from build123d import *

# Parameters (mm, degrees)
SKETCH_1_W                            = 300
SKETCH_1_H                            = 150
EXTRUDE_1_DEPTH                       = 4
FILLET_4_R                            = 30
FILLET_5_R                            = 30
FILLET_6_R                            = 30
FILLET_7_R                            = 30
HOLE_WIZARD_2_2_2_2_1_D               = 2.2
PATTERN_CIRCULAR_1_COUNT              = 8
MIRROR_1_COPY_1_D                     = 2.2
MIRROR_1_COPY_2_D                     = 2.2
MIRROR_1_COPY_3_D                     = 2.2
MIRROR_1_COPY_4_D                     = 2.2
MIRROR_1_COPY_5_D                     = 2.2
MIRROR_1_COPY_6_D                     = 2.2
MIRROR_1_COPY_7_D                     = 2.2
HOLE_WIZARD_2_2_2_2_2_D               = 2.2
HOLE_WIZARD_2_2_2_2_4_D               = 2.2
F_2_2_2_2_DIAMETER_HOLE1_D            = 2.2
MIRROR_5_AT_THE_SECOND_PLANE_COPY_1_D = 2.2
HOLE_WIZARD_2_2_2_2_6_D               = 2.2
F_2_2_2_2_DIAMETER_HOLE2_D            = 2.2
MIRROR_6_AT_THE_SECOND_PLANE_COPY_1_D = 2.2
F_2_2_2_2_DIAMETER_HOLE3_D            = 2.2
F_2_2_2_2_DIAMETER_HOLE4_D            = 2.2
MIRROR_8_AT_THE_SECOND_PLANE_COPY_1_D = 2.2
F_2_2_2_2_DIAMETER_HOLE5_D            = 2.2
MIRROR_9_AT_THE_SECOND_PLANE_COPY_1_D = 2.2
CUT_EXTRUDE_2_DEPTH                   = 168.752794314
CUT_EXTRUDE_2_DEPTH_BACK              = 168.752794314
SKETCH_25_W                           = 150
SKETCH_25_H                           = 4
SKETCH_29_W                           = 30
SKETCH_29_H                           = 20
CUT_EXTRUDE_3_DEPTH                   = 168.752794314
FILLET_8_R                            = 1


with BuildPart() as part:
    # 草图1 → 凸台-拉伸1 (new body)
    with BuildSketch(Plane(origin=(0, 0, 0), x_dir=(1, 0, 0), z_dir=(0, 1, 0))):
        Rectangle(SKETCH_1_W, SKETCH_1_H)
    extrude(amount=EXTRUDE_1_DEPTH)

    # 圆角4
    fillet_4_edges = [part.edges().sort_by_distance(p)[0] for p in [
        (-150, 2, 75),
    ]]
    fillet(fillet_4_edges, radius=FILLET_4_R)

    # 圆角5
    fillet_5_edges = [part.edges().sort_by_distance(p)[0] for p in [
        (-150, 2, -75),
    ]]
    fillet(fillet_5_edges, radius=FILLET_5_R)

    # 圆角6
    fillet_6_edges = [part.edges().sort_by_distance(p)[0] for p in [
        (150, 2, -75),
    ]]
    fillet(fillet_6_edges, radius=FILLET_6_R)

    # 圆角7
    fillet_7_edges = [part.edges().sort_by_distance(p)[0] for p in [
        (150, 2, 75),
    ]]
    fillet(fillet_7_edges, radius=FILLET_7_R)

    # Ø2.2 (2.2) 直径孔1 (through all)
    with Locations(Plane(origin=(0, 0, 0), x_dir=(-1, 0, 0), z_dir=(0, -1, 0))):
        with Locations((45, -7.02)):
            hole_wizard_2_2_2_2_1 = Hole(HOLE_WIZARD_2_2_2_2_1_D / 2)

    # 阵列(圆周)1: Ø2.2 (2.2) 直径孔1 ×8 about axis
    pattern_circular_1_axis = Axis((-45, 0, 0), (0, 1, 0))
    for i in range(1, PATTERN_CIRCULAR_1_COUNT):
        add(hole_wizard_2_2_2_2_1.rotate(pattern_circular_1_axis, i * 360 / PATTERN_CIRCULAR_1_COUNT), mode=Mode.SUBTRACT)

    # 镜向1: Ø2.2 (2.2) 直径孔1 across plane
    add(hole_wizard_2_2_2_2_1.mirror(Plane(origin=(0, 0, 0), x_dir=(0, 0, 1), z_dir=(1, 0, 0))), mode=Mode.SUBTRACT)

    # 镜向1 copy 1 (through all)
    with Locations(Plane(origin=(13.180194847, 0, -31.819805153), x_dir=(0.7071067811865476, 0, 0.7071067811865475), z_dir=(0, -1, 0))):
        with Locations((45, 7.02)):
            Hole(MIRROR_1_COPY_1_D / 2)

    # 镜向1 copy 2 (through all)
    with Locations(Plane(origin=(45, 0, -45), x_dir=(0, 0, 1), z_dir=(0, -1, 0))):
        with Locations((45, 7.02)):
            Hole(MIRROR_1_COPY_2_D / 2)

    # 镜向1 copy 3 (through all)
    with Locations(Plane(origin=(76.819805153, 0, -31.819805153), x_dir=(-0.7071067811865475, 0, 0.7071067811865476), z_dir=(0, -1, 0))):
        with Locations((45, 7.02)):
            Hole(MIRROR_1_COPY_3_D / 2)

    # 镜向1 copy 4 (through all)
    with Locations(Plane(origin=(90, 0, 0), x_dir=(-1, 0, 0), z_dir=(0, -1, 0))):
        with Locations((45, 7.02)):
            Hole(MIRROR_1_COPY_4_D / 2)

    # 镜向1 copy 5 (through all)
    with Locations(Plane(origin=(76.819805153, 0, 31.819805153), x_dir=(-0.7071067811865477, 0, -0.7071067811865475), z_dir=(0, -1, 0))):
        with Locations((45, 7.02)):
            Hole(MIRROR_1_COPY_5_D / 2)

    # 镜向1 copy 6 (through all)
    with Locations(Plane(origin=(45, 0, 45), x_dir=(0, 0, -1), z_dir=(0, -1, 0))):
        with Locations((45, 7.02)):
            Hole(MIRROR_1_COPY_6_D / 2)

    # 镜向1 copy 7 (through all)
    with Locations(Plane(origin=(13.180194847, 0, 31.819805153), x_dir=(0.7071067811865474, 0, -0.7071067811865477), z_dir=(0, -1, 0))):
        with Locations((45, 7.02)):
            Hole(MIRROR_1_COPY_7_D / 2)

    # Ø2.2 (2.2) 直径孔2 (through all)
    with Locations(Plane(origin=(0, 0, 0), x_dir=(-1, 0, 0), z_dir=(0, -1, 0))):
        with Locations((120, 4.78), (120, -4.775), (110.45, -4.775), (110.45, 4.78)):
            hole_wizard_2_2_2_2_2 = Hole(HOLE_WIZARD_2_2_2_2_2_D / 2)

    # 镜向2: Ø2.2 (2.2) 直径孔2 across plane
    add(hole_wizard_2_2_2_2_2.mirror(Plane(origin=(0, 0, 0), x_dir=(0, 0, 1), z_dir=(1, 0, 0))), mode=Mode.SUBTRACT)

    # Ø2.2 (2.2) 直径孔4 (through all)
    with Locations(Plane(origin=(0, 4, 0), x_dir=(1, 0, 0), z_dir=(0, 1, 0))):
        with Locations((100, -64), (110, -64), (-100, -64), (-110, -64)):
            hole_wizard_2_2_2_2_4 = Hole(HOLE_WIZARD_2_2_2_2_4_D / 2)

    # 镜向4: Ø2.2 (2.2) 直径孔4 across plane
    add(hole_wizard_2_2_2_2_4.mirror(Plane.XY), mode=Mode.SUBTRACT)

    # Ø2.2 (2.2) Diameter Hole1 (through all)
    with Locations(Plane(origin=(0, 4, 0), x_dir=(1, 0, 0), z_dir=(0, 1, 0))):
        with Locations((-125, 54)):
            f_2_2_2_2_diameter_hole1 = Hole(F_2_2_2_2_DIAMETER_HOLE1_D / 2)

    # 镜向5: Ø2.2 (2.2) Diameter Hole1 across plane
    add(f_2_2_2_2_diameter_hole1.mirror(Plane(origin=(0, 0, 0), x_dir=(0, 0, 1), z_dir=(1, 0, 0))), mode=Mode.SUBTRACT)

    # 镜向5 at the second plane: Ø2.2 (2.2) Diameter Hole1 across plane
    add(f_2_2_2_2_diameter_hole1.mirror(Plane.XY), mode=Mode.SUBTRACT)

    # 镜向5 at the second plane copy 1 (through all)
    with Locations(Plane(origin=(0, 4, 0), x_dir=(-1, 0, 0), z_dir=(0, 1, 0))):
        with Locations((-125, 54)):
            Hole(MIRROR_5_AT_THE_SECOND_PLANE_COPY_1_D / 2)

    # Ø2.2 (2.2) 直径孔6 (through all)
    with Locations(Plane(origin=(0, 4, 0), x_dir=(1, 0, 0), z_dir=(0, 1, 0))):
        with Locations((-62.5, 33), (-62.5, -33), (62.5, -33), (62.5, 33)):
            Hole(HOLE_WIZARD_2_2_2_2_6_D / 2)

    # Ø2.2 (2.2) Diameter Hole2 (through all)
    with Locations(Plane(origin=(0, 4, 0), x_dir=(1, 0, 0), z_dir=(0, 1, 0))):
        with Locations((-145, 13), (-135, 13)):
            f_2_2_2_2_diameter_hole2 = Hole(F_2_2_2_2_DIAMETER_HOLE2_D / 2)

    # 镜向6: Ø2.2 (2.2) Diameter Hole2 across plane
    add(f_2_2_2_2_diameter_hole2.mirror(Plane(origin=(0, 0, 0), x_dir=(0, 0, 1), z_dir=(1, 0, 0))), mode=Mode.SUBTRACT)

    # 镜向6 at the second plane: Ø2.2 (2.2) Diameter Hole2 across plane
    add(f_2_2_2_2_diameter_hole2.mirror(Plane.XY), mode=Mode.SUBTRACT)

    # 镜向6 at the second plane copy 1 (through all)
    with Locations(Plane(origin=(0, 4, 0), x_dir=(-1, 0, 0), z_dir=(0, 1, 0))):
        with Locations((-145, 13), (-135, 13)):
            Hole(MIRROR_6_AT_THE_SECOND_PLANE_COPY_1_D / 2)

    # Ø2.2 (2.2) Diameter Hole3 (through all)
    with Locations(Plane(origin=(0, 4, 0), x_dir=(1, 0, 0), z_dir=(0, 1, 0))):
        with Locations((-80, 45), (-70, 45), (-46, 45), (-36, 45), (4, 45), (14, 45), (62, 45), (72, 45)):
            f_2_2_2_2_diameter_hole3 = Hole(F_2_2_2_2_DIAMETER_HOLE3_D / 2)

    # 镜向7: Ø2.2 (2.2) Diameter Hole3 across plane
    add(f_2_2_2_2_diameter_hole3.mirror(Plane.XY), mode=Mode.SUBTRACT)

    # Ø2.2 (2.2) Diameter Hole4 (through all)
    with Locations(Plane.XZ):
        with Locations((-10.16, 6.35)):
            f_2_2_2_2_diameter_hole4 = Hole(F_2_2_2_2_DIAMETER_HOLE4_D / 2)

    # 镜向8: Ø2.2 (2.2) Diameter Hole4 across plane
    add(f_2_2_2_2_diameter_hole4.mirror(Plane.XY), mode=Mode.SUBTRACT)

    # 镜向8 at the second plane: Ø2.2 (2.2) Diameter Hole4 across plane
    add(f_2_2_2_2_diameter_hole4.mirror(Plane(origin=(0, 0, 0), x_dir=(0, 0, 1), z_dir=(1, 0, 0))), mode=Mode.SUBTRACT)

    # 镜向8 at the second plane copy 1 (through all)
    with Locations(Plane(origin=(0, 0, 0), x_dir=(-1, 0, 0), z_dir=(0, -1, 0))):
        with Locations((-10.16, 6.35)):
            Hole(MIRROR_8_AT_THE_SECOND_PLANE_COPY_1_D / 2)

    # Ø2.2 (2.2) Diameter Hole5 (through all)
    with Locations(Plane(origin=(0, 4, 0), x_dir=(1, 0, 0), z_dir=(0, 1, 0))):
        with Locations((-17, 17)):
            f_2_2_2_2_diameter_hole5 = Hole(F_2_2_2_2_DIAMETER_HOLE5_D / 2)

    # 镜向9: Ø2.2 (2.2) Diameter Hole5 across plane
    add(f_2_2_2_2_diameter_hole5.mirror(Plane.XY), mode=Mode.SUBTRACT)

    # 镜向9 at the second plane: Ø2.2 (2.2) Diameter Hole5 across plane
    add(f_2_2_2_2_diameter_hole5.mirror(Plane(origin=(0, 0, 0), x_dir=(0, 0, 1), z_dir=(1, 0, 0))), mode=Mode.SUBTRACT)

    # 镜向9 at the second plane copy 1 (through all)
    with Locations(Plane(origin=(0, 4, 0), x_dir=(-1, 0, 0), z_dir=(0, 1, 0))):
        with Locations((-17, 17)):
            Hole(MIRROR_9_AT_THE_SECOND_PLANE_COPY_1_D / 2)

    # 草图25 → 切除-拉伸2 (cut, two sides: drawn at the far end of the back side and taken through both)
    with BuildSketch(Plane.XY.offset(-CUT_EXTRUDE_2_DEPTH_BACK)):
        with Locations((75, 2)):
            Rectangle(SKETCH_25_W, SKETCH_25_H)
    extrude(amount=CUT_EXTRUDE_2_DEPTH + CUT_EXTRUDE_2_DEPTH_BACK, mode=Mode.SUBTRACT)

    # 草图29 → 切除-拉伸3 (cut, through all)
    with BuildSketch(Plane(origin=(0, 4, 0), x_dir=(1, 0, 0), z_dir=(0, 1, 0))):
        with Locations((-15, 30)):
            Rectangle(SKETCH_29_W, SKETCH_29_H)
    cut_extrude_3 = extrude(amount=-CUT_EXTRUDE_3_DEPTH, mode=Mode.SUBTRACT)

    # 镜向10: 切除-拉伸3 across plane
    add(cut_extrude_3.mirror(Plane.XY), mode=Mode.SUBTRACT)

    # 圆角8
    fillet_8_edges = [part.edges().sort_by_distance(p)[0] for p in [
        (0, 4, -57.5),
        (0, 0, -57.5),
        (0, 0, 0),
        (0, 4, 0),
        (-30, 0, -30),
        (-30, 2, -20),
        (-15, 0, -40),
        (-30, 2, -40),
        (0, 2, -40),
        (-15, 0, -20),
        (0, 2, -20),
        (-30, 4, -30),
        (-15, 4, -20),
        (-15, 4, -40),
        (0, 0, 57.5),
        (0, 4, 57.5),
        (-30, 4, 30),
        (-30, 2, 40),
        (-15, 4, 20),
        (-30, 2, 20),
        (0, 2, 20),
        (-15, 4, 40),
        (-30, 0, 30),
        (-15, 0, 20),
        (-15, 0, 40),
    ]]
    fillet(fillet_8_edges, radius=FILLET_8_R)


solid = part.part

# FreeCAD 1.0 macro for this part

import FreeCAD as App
import Part
import Sketcher

V = App.Vector


def edges_at(feature, points):
    """Names of the edges that pass closest to the given points."""
    edges = feature.Shape.Edges
    near = lambda p: min(range(len(edges)), key=lambda i: edges[i].distToShape(Part.Vertex(*p))[0])
    return sorted({f"Edge{near(p) + 1}" for p in points})

doc = App.newDocument("Part")
body = doc.addObject("PartDesign::Body", "Body")

# Sketch on XZ plane
sketch1 = body.newObject("Sketcher::SketchObject", "Sketch")
sketch1.AttachmentSupport = (doc.getObject("XZ_Plane"), [""])
sketch1.MapMode = "FlatFace"
sketch1.addGeometry([
    Part.LineSegment(V(-150, -75, 0), V(-150, 75, 0)),
    Part.LineSegment(V(-150, 75, 0), V(150, 75, 0)),
    Part.LineSegment(V(150, 75, 0), V(150, -75, 0)),
    Part.LineSegment(V(150, -75, 0), V(-150, -75, 0)),
], False)
sketch1.addConstraint([
    Sketcher.Constraint("Coincident", 0, 2, 1, 1),
    Sketcher.Constraint("Coincident", 1, 2, 2, 1),
    Sketcher.Constraint("Coincident", 2, 2, 3, 1),
    Sketcher.Constraint("Coincident", 3, 2, 0, 1),
    Sketcher.Constraint("Vertical", 0),
    Sketcher.Constraint("Horizontal", 1),
    Sketcher.Constraint("Vertical", 2),
    Sketcher.Constraint("Horizontal", 3),
    Sketcher.Constraint("Symmetric", 0, 2, 2, 2, -1, 1),
    Sketcher.Constraint("DistanceX", 1, 1, 1, 2, 300.0),
    Sketcher.Constraint("DistanceY", 0, 1, 0, 2, 150.0),
])
pad1 = body.newObject("PartDesign::Pad", "Pad")
pad1.Profile = sketch1
pad1.Length = 4
pad1.Reversed = True
doc.recompute()

fillet = body.newObject("PartDesign::Fillet", "Fillet")
fillet.Base = (pad1, edges_at(pad1, [(-150, 2, 75)]))
fillet.Radius = 30
doc.recompute()

fillet2 = body.newObject("PartDesign::Fillet", "Fillet001")
fillet2.Base = (fillet, edges_at(fillet, [(-150, 2, -75)]))
fillet2.Radius = 30
doc.recompute()

fillet3 = body.newObject("PartDesign::Fillet", "Fillet002")
fillet3.Base = (fillet2, edges_at(fillet2, [(150, 2, -75)]))
fillet3.Radius = 30
doc.recompute()

fillet4 = body.newObject("PartDesign::Fillet", "Fillet003")
fillet4.Base = (fillet3, edges_at(fillet3, [(150, 2, 75)]))
fillet4.Radius = 30

# Sketch on XZ plane
sketch2 = body.newObject("Sketcher::SketchObject", "Sketch001")
sketch2.AttachmentSupport = (doc.getObject("XZ_Plane"), [""])
sketch2.MapMode = "FlatFace"
sketch2.addGeometry(Part.Circle(V(-45, 7, 0), V(0, 0, 1), 1.1), False)
sketch2.addConstraint([
    Sketcher.Constraint("Diameter", 0, 2.2),
    Sketcher.Constraint("DistanceX", 0, 3, -1, 1, 45.0),
    Sketcher.Constraint("DistanceY", -1, 1, 0, 3, 7.02),
])
doc.recompute()
hole = body.newObject("PartDesign::Hole", "Hole")
hole.Profile = sketch2
hole.ThreadType = "None"
hole.Diameter = 2.2
hole.DepthType = "ThroughAll"
doc.recompute()

datumline = body.newObject("PartDesign::Line", "DatumLine")
datumline.Placement = App.Placement(V(-45, 0, 0), App.Rotation(V(0, 0, 1), V(0, 1, 0)))
polarpattern = body.newObject("PartDesign::PolarPattern", "PolarPattern")
polarpattern.Originals = [hole]
polarpattern.Axis = (datumline, [""])
polarpattern.Angle = 360
polarpattern.Occurrences = 8
body.Tip = polarpattern
doc.recompute()

mirrored = body.newObject("PartDesign::Mirrored", "Mirrored")
mirrored.Originals = [hole]
mirrored.MirrorPlane = (doc.getObject("YZ_Plane"), [""])
body.Tip = mirrored

# Sketch on XZ plane
sketch3 = body.newObject("Sketcher::SketchObject", "Sketch002")
sketch3.AttachmentSupport = (doc.getObject("XZ_Plane"), [""])
sketch3.MapMode = "FlatFace"
sketch3.addGeometry(Part.Circle(V(40, 5, 0), V(0, 0, 1), 1.1), False)
sketch3.addConstraint([
    Sketcher.Constraint("Diameter", 0, 2.2),
    Sketcher.Constraint("DistanceX", -1, 1, 0, 3, 40.03611),
    Sketcher.Constraint("DistanceY", -1, 1, 0, 3, 4.96389),
])
doc.recompute()
hole2 = body.newObject("PartDesign::Hole", "Hole001")
hole2.Profile = sketch3
hole2.ThreadType = "None"
hole2.Diameter = 2.2
hole2.DepthType = "ThroughAll"

# Sketch on XZ plane
sketch4 = body.newObject("Sketcher::SketchObject", "Sketch003")
sketch4.AttachmentSupport = (doc.getObject("XZ_Plane"), [""])
sketch4.MapMode = "FlatFace"
sketch4.addGeometry(Part.Circle(V(38, 0, 0), V(0, 0, 1), 1.1), False)
sketch4.addConstraint([
    Sketcher.Constraint("PointOnObject", 0, 3, -1),
    Sketcher.Constraint("Diameter", 0, 2.2),
    Sketcher.Constraint("DistanceX", -1, 1, 0, 3, 37.98),
])
doc.recompute()
hole3 = body.newObject("PartDesign::Hole", "Hole002")
hole3.Profile = sketch4
hole3.ThreadType = "None"
hole3.Diameter = 2.2
hole3.DepthType = "ThroughAll"

# Sketch on XZ plane
sketch5 = body.newObject("Sketcher::SketchObject", "Sketch004")
sketch5.AttachmentSupport = (doc.getObject("XZ_Plane"), [""])
sketch5.MapMode = "FlatFace"
sketch5.addGeometry(Part.Circle(V(40, -5, 0), V(0, 0, 1), 1.1), False)
sketch5.addConstraint([
    Sketcher.Constraint("Diameter", 0, 2.2),
    Sketcher.Constraint("DistanceX", -1, 1, 0, 3, 40.03611),
    Sketcher.Constraint("DistanceY", 0, 3, -1, 1, 4.96389),
])
doc.recompute()
hole4 = body.newObject("PartDesign::Hole", "Hole003")
hole4.Profile = sketch5
hole4.ThreadType = "None"
hole4.Diameter = 2.2
hole4.DepthType = "ThroughAll"

# Sketch on XZ plane
sketch6 = body.newObject("Sketcher::SketchObject", "Sketch005")
sketch6.AttachmentSupport = (doc.getObject("XZ_Plane"), [""])
sketch6.MapMode = "FlatFace"
sketch6.addGeometry(Part.Circle(V(45, -7, 0), V(0, 0, 1), 1.1), False)
sketch6.addConstraint([
    Sketcher.Constraint("Diameter", 0, 2.2),
    Sketcher.Constraint("DistanceX", -1, 1, 0, 3, 45.0),
    Sketcher.Constraint("DistanceY", 0, 3, -1, 1, 7.02),
])
doc.recompute()
hole5 = body.newObject("PartDesign::Hole", "Hole004")
hole5.Profile = sketch6
hole5.ThreadType = "None"
hole5.Diameter = 2.2
hole5.DepthType = "ThroughAll"

# Sketch on XZ plane
sketch7 = body.newObject("Sketcher::SketchObject", "Sketch006")
sketch7.AttachmentSupport = (doc.getObject("XZ_Plane"), [""])
sketch7.MapMode = "FlatFace"
sketch7.addGeometry(Part.Circle(V(50, -5, 0), V(0, 0, 1), 1.1), False)
sketch7.addConstraint([
    Sketcher.Constraint("Diameter", 0, 2.2),
    Sketcher.Constraint("DistanceX", -1, 1, 0, 3, 49.96389),
    Sketcher.Constraint("DistanceY", 0, 3, -1, 1, 4.96389),
])
doc.recompute()
hole6 = body.newObject("PartDesign::Hole", "Hole005")
hole6.Profile = sketch7
hole6.ThreadType = "None"
hole6.Diameter = 2.2
hole6.DepthType = "ThroughAll"

# Sketch on XZ plane
sketch8 = body.newObject("Sketcher::SketchObject", "Sketch007")
sketch8.AttachmentSupport = (doc.getObject("XZ_Plane"), [""])
sketch8.MapMode = "FlatFace"
sketch8.addGeometry(Part.Circle(V(52, 0, 0), V(0, 0, 1), 1.1), False)
sketch8.addConstraint([
    Sketcher.Constraint("PointOnObject", 0, 3, -1),
    Sketcher.Constraint("Diameter", 0, 2.2),
    Sketcher.Constraint("DistanceX", -1, 1, 0, 3, 52.02),
])
doc.recompute()
hole7 = body.newObject("PartDesign::Hole", "Hole006")
hole7.Profile = sketch8
hole7.ThreadType = "None"
hole7.Diameter = 2.2
hole7.DepthType = "ThroughAll"

# Sketch on XZ plane
sketch9 = body.newObject("Sketcher::SketchObject", "Sketch008")
sketch9.AttachmentSupport = (doc.getObject("XZ_Plane"), [""])
sketch9.MapMode = "FlatFace"
sketch9.addGeometry(Part.Circle(V(50, 5, 0), V(0, 0, 1), 1.1), False)
sketch9.addConstraint([
    Sketcher.Constraint("Diameter", 0, 2.2),
    Sketcher.Constraint("DistanceX", -1, 1, 0, 3, 49.96389),
    Sketcher.Constraint("DistanceY", -1, 1, 0, 3, 4.96389),
])
doc.recompute()
hole8 = body.newObject("PartDesign::Hole", "Hole007")
hole8.Profile = sketch9
hole8.ThreadType = "None"
hole8.Diameter = 2.2
hole8.DepthType = "ThroughAll"

# Sketch on XZ plane
sketch10 = body.newObject("Sketcher::SketchObject", "Sketch009")
sketch10.AttachmentSupport = (doc.getObject("XZ_Plane"), [""])
sketch10.MapMode = "FlatFace"
sketch10.addGeometry([
    Part.Circle(V(-120, -4.8, 0), V(0, 0, 1), 1.1),
    Part.Circle(V(-120, 4.8, 0), V(0, 0, 1), 1.1),
    Part.Circle(V(-110.5, 4.8, 0), V(0, 0, 1), 1.1),
    Part.Circle(V(-110.5, -4.8, 0), V(0, 0, 1), 1.1),
], False)
sketch10.addConstraint([
    Sketcher.Constraint("Equal", 0, 1),
    Sketcher.Constraint("Equal", 1, 2),
    Sketcher.Constraint("Equal", 2, 3),
    Sketcher.Constraint("Horizontal", 1, 3, 2, 3),
    Sketcher.Constraint("Horizontal", 0, 3, 3, 3),
    Sketcher.Constraint("Vertical", 0, 3, 1, 3),
    Sketcher.Constraint("Vertical", 2, 3, 3, 3),
    Sketcher.Constraint("Diameter", 0, 2.2),
    Sketcher.Constraint("DistanceX", 0, 3, -1, 1, 120.0),
    Sketcher.Constraint("DistanceY", 0, 3, -1, 1, 4.78),
    Sketcher.Constraint("DistanceX", 2, 3, -1, 1, 110.45),
    Sketcher.Constraint("DistanceY", -1, 1, 1, 3, 4.775),
])
doc.recompute()
hole9 = body.newObject("PartDesign::Hole", "Hole008")
hole9.Profile = sketch10
hole9.ThreadType = "None"
hole9.Diameter = 2.2
hole9.DepthType = "ThroughAll"
doc.recompute()

mirrored2 = body.newObject("PartDesign::Mirrored", "Mirrored001")
mirrored2.Originals = [hole9]
mirrored2.MirrorPlane = (doc.getObject("YZ_Plane"), [""])
body.Tip = mirrored2

# Sketch on XZ plane
sketch11 = body.newObject("Sketcher::SketchObject", "Sketch010")
sketch11.AttachmentSupport = (doc.getObject("XZ_Plane"), [""])
sketch11.MapMode = "FlatFace"
sketch11.AttachmentOffset = App.Placement(V(0, 0, -4), App.Rotation())
sketch11.addGeometry([
    Part.Circle(V(100, 64, 0), V(0, 0, 1), 1.1),
    Part.Circle(V(110, 64, 0), V(0, 0, 1), 1.1),
    Part.Circle(V(-100, 64, 0), V(0, 0, 1), 1.1),
    Part.Circle(V(-110, 64, 0), V(0, 0, 1), 1.1),
], False)
sketch11.addConstraint([
    Sketcher.Constraint("Equal", 0, 1),
    Sketcher.Constraint("Equal", 1, 2),
    Sketcher.Constraint("Equal", 2, 3),
    Sketcher.Constraint("Symmetric", 0, 3, 2, 3, -2),
    Sketcher.Constraint("Symmetric", 1, 3, 3, 3, -2),
    Sketcher.Constraint("Horizontal", 0, 3, 1, 3),
    Sketcher.Constraint("Diameter", 0, 2.2),
    Sketcher.Constraint("DistanceX", -1, 1, 0, 3, 100.0),
    Sketcher.Constraint("DistanceY", -1, 1, 0, 3, 64.0),
    Sketcher.Constraint("DistanceX", -1, 1, 1, 3, 110.0),
])
doc.recompute()
hole10 = body.newObject("PartDesign::Hole", "Hole009")
hole10.Profile = sketch11
hole10.ThreadType = "None"
hole10.Diameter = 2.2
hole10.DepthType = "ThroughAll"
hole10.Reversed = True
doc.recompute()

mirrored3 = body.newObject("PartDesign::Mirrored", "Mirrored002")
mirrored3.Originals = [hole10]
mirrored3.MirrorPlane = (doc.getObject("XY_Plane"), [""])
body.Tip = mirrored3

# Sketch on XZ plane
sketch12 = body.newObject("Sketcher::SketchObject", "Sketch011")
sketch12.AttachmentSupport = (doc.getObject("XZ_Plane"), [""])
sketch12.MapMode = "FlatFace"
sketch12.AttachmentOffset = App.Placement(V(0, 0, -4), App.Rotation())
sketch12.addGeometry(Part.Circle(V(-125, -54, 0), V(0, 0, 1), 1.1), False)
sketch12.addConstraint([
    Sketcher.Constraint("Diameter", 0, 2.2),
    Sketcher.Constraint("DistanceX", 0, 3, -1, 1, 125.0),
    Sketcher.Constraint("DistanceY", 0, 3, -1, 1, 54.0),
])
doc.recompute()
hole11 = body.newObject("PartDesign::Hole", "Hole010")
hole11.Profile = sketch12
hole11.ThreadType = "None"
hole11.Diameter = 2.2
hole11.DepthType = "ThroughAll"
hole11.Reversed = True
doc.recompute()

mirrored4 = body.newObject("PartDesign::Mirrored", "Mirrored003")
mirrored4.Originals = [hole11]
mirrored4.MirrorPlane = (doc.getObject("YZ_Plane"), [""])
body.Tip = mirrored4
doc.recompute()

mirrored5 = body.newObject("PartDesign::Mirrored", "Mirrored004")
mirrored5.Originals = [hole11]
mirrored5.MirrorPlane = (doc.getObject("XY_Plane"), [""])
body.Tip = mirrored5

# Sketch on XZ plane
sketch13 = body.newObject("Sketcher::SketchObject", "Sketch012")
sketch13.AttachmentSupport = (doc.getObject("XZ_Plane"), [""])
sketch13.MapMode = "FlatFace"
sketch13.AttachmentOffset = App.Placement(V(0, 0, -4), App.Rotation())
sketch13.addGeometry(Part.Circle(V(125, 54, 0), V(0, 0, 1), 1.1), False)
sketch13.addConstraint([
    Sketcher.Constraint("Diameter", 0, 2.2),
    Sketcher.Constraint("DistanceX", -1, 1, 0, 3, 125.0),
    Sketcher.Constraint("DistanceY", -1, 1, 0, 3, 54.0),
])
doc.recompute()
hole12 = body.newObject("PartDesign::Hole", "Hole011")
hole12.Profile = sketch13
hole12.ThreadType = "None"
hole12.Diameter = 2.2
hole12.DepthType = "ThroughAll"
hole12.Reversed = True

# Sketch on XZ plane
sketch14 = body.newObject("Sketcher::SketchObject", "Sketch013")
sketch14.AttachmentSupport = (doc.getObject("XZ_Plane"), [""])
sketch14.MapMode = "FlatFace"
sketch14.AttachmentOffset = App.Placement(V(0, 0, -4), App.Rotation())
sketch14.addGeometry([
    Part.Circle(V(-62.5, -33, 0), V(0, 0, 1), 1.1),
    Part.Circle(V(-62.5, 33, 0), V(0, 0, 1), 1.1),
    Part.Circle(V(62.5, 33, 0), V(0, 0, 1), 1.1),
    Part.Circle(V(62.5, -33, 0), V(0, 0, 1), 1.1),
], False)
sketch14.addConstraint([
    Sketcher.Constraint("Equal", 0, 1),
    Sketcher.Constraint("Equal", 1, 2),
    Sketcher.Constraint("Equal", 2, 3),
    Sketcher.Constraint("Symmetric", 0, 3, 2, 3, -1, 1),
    Sketcher.Constraint("Symmetric", 1, 3, 3, 3, -1, 1),
    Sketcher.Constraint("Symmetric", 1, 3, 2, 3, -2),
    Sketcher.Constraint("Diameter", 0, 2.2),
    Sketcher.Constraint("DistanceY", 0, 3, -1, 1, 33.0),
    Sketcher.Constraint("DistanceX", 1, 3, 2, 3, 125.0),
])
doc.recompute()
hole13 = body.newObject("PartDesign::Hole", "Hole012")
hole13.Profile = sketch14
hole13.ThreadType = "None"
hole13.Diameter = 2.2
hole13.DepthType = "ThroughAll"
hole13.Reversed = True

# Sketch on XZ plane
sketch15 = body.newObject("Sketcher::SketchObject", "Sketch014")
sketch15.AttachmentSupport = (doc.getObject("XZ_Plane"), [""])
sketch15.MapMode = "FlatFace"
sketch15.AttachmentOffset = App.Placement(V(0, 0, -4), App.Rotation())
sketch15.addGeometry([
    Part.Circle(V(-145, -13, 0), V(0, 0, 1), 1.1),
    Part.Circle(V(-135, -13, 0), V(0, 0, 1), 1.1),
], False)
sketch15.addConstraint([
    Sketcher.Constraint("Equal", 0, 1),
    Sketcher.Constraint("Horizontal", 0, 3, 1, 3),
    Sketcher.Constraint("Diameter", 0, 2.2),
    Sketcher.Constraint("DistanceX", 0, 3, -1, 1, 145.0),
    Sketcher.Constraint("DistanceY", 0, 3, -1, 1, 13.0),
    Sketcher.Constraint("DistanceX", 1, 3, -1, 1, 135.0),
])
doc.recompute()
hole14 = body.newObject("PartDesign::Hole", "Hole013")
hole14.Profile = sketch15
hole14.ThreadType = "None"
hole14.Diameter = 2.2
hole14.DepthType = "ThroughAll"
hole14.Reversed = True
doc.recompute()

mirrored6 = body.newObject("PartDesign::Mirrored", "Mirrored005")
mirrored6.Originals = [hole14]
mirrored6.MirrorPlane = (doc.getObject("YZ_Plane"), [""])
body.Tip = mirrored6
doc.recompute()

mirrored7 = body.newObject("PartDesign::Mirrored", "Mirrored006")
mirrored7.Originals = [hole14]
mirrored7.MirrorPlane = (doc.getObject("XY_Plane"), [""])
body.Tip = mirrored7

# Sketch on XZ plane
sketch16 = body.newObject("Sketcher::SketchObject", "Sketch015")
sketch16.AttachmentSupport = (doc.getObject("XZ_Plane"), [""])
sketch16.MapMode = "FlatFace"
sketch16.AttachmentOffset = App.Placement(V(0, 0, -4), App.Rotation())
sketch16.addGeometry([
    Part.Circle(V(145, 13, 0), V(0, 0, 1), 1.1),
    Part.Circle(V(135, 13, 0), V(0, 0, 1), 1.1),
], False)
sketch16.addConstraint([
    Sketcher.Constraint("Equal", 0, 1),
    Sketcher.Constraint("Horizontal", 0, 3, 1, 3),
    Sketcher.Constraint("Diameter", 0, 2.2),
    Sketcher.Constraint("DistanceX", -1, 1, 0, 3, 145.0),
    Sketcher.Constraint("DistanceY", -1, 1, 0, 3, 13.0),
    Sketcher.Constraint("DistanceX", -1, 1, 1, 3, 135.0),
])
doc.recompute()
hole15 = body.newObject("PartDesign::Hole", "Hole014")
hole15.Profile = sketch16
hole15.ThreadType = "None"
hole15.Diameter = 2.2
hole15.DepthType = "ThroughAll"
hole15.Reversed = True

# Sketch on XZ plane
sketch17 = body.newObject("Sketcher::SketchObject", "Sketch016")
sketch17.AttachmentSupport = (doc.getObject("XZ_Plane"), [""])
sketch17.MapMode = "FlatFace"
sketch17.AttachmentOffset = App.Placement(V(0, 0, -4), App.Rotation())
sketch17.addGeometry([
    Part.Circle(V(-80, -45, 0), V(0, 0, 1), 1.1),  # 0
    Part.Circle(V(-70, -45, 0), V(0, 0, 1), 1.1),  # 1
    Part.Circle(V(-46, -45, 0), V(0, 0, 1), 1.1),  # 2
    Part.Circle(V(-36, -45, 0), V(0, 0, 1), 1.1),  # 3
    Part.Circle(V(4, -45, 0), V(0, 0, 1), 1.1),  # 4
    Part.Circle(V(14, -45, 0), V(0, 0, 1), 1.1),  # 5
    Part.Circle(V(62, -45, 0), V(0, 0, 1), 1.1),  # 6
    Part.Circle(V(72, -45, 0), V(0, 0, 1), 1.1),  # 7
], False)
sketch17.addConstraint([
    Sketcher.Constraint("Equal", 0, 1),
    Sketcher.Constraint("Equal", 1, 2),
    Sketcher.Constraint("Equal", 2, 3),
    Sketcher.Constraint("Equal", 3, 4),
    Sketcher.Constraint("Equal", 4, 5),
    Sketcher.Constraint("Equal", 5, 6),
    Sketcher.Constraint("Equal", 6, 7),
    Sketcher.Constraint("Horizontal", 0, 3, 1, 3),
    Sketcher.Constraint("Horizontal", 1, 3, 2, 3),
    Sketcher.Constraint("Horizontal", 2, 3, 3, 3),
    Sketcher.Constraint("Horizontal", 3, 3, 4, 3),
    Sketcher.Constraint("Horizontal", 4, 3, 5, 3),
    Sketcher.Constraint("Horizontal", 5, 3, 6, 3),
    Sketcher.Constraint("Horizontal", 6, 3, 7, 3),
    Sketcher.Constraint("Diameter", 0, 2.2),
    Sketcher.Constraint("DistanceX", 0, 3, -1, 1, 80.0),
    Sketcher.Constraint("DistanceY", 0, 3, -1, 1, 45.0),
    Sketcher.Constraint("DistanceX", 1, 3, -1, 1, 70.0),
    Sketcher.Constraint("DistanceX", 2, 3, -1, 1, 46.0),
    Sketcher.Constraint("DistanceX", 3, 3, -1, 1, 36.0),
    Sketcher.Constraint("DistanceX", -1, 1, 4, 3, 4.0),
    Sketcher.Constraint("DistanceX", -1, 1, 5, 3, 14.0),
    Sketcher.Constraint("DistanceX", -1, 1, 6, 3, 62.0),
    Sketcher.Constraint("DistanceX", -1, 1, 7, 3, 72.0),
])
doc.recompute()
hole16 = body.newObject("PartDesign::Hole", "Hole015")
hole16.Profile = sketch17
hole16.ThreadType = "None"
hole16.Diameter = 2.2
hole16.DepthType = "ThroughAll"
hole16.Reversed = True
doc.recompute()

mirrored8 = body.newObject("PartDesign::Mirrored", "Mirrored007")
mirrored8.Originals = [hole16]
mirrored8.MirrorPlane = (doc.getObject("XY_Plane"), [""])
body.Tip = mirrored8

# Sketch on XZ plane
sketch18 = body.newObject("Sketcher::SketchObject", "Sketch017")
sketch18.AttachmentSupport = (doc.getObject("XZ_Plane"), [""])
sketch18.MapMode = "FlatFace"
sketch18.addGeometry(Part.Circle(V(-10.2, 6.3, 0), V(0, 0, 1), 1.1), False)
sketch18.addConstraint([
    Sketcher.Constraint("Diameter", 0, 2.2),
    Sketcher.Constraint("DistanceX", 0, 3, -1, 1, 10.16),
    Sketcher.Constraint("DistanceY", -1, 1, 0, 3, 6.35),
])
doc.recompute()
hole17 = body.newObject("PartDesign::Hole", "Hole016")
hole17.Profile = sketch18
hole17.ThreadType = "None"
hole17.Diameter = 2.2
hole17.DepthType = "ThroughAll"
doc.recompute()

mirrored9 = body.newObject("PartDesign::Mirrored", "Mirrored008")
mirrored9.Originals = [hole17]
mirrored9.MirrorPlane = (doc.getObject("XY_Plane"), [""])
body.Tip = mirrored9
doc.recompute()

mirrored10 = body.newObject("PartDesign::Mirrored", "Mirrored009")
mirrored10.Originals = [hole17]
mirrored10.MirrorPlane = (doc.getObject("YZ_Plane"), [""])
body.Tip = mirrored10

# Sketch on XZ plane
sketch19 = body.newObject("Sketcher::SketchObject", "Sketch018")
sketch19.AttachmentSupport = (doc.getObject("XZ_Plane"), [""])
sketch19.MapMode = "FlatFace"
sketch19.addGeometry(Part.Circle(V(10.2, -6.3, 0), V(0, 0, 1), 1.1), False)
sketch19.addConstraint([
    Sketcher.Constraint("Diameter", 0, 2.2),
    Sketcher.Constraint("DistanceX", -1, 1, 0, 3, 10.16),
    Sketcher.Constraint("DistanceY", 0, 3, -1, 1, 6.35),
])
doc.recompute()
hole18 = body.newObject("PartDesign::Hole", "Hole017")
hole18.Profile = sketch19
hole18.ThreadType = "None"
hole18.Diameter = 2.2
hole18.DepthType = "ThroughAll"

# Sketch on XZ plane
sketch20 = body.newObject("Sketcher::SketchObject", "Sketch019")
sketch20.AttachmentSupport = (doc.getObject("XZ_Plane"), [""])
sketch20.MapMode = "FlatFace"
sketch20.AttachmentOffset = App.Placement(V(0, 0, -4), App.Rotation())
sketch20.addGeometry(Part.Circle(V(-17, -17, 0), V(0, 0, 1), 1.1), False)
sketch20.addConstraint([
    Sketcher.Constraint("Diameter", 0, 2.2),
    Sketcher.Constraint("DistanceX", 0, 3, -1, 1, 17.0),
    Sketcher.Constraint("DistanceY", 0, 3, -1, 1, 17.0),
])
doc.recompute()
hole19 = body.newObject("PartDesign::Hole", "Hole018")
hole19.Profile = sketch20
hole19.ThreadType = "None"
hole19.Diameter = 2.2
hole19.DepthType = "ThroughAll"
hole19.Reversed = True
doc.recompute()

mirrored11 = body.newObject("PartDesign::Mirrored", "Mirrored010")
mirrored11.Originals = [hole19]
mirrored11.MirrorPlane = (doc.getObject("XY_Plane"), [""])
body.Tip = mirrored11
doc.recompute()

mirrored12 = body.newObject("PartDesign::Mirrored", "Mirrored011")
mirrored12.Originals = [hole19]
mirrored12.MirrorPlane = (doc.getObject("YZ_Plane"), [""])
body.Tip = mirrored12

# Sketch on XZ plane
sketch21 = body.newObject("Sketcher::SketchObject", "Sketch020")
sketch21.AttachmentSupport = (doc.getObject("XZ_Plane"), [""])
sketch21.MapMode = "FlatFace"
sketch21.AttachmentOffset = App.Placement(V(0, 0, -4), App.Rotation())
sketch21.addGeometry(Part.Circle(V(17, 17, 0), V(0, 0, 1), 1.1), False)
sketch21.addConstraint([
    Sketcher.Constraint("Diameter", 0, 2.2),
    Sketcher.Constraint("DistanceX", -1, 1, 0, 3, 17.0),
    Sketcher.Constraint("DistanceY", -1, 1, 0, 3, 17.0),
])
doc.recompute()
hole20 = body.newObject("PartDesign::Hole", "Hole019")
hole20.Profile = sketch21
hole20.ThreadType = "None"
hole20.Diameter = 2.2
hole20.DepthType = "ThroughAll"
hole20.Reversed = True

# Sketch on XY plane
sketch22 = body.newObject("Sketcher::SketchObject", "Sketch021")
sketch22.AttachmentSupport = (doc.getObject("XY_Plane"), [""])
sketch22.MapMode = "FlatFace"
sketch22.addGeometry([
    Part.LineSegment(V(0, 4, 0), V(0, 0, 0)),
    Part.LineSegment(V(0, 0, 0), V(150, 0, 0)),
    Part.LineSegment(V(150, 0, 0), V(150, 4, 0)),
    Part.LineSegment(V(150, 4, 0), V(0, 4, 0)),
], False)
sketch22.addConstraint([
    Sketcher.Constraint("Coincident", 0, 2, 1, 1),
    Sketcher.Constraint("Coincident", 1, 2, 2, 1),
    Sketcher.Constraint("Coincident", 2, 2, 3, 1),
    Sketcher.Constraint("Coincident", 3, 2, 0, 1),
    Sketcher.Constraint("Vertical", 0),
    Sketcher.Constraint("Horizontal", 1),
    Sketcher.Constraint("Vertical", 2),
    Sketcher.Constraint("Horizontal", 3),
    Sketcher.Constraint("Coincident", 0, 2, -1, 1),
    Sketcher.Constraint("DistanceX", 1, 1, 1, 2, 150.0),
    Sketcher.Constraint("DistanceY", 0, 2, 0, 1, 4.0),
])
pocket1 = body.newObject("PartDesign::Pocket", "Pocket")
pocket1.Profile = sketch22
pocket1.Type = "ThroughAll"
pocket1.Midplane = True

# Sketch on XZ plane
sketch23 = body.newObject("Sketcher::SketchObject", "Sketch022")
sketch23.AttachmentSupport = (doc.getObject("XZ_Plane"), [""])
sketch23.MapMode = "FlatFace"
sketch23.AttachmentOffset = App.Placement(V(0, 0, -4), App.Rotation())
sketch23.addGeometry([
    Part.LineSegment(V(-30, -40, 0), V(-30, -20, 0)),
    Part.LineSegment(V(-30, -20, 0), V(0, -20, 0)),
    Part.LineSegment(V(0, -20, 0), V(0, -40, 0)),
    Part.LineSegment(V(0, -40, 0), V(-30, -40, 0)),
], False)
sketch23.addConstraint([
    Sketcher.Constraint("Coincident", 0, 2, 1, 1),
    Sketcher.Constraint("Coincident", 1, 2, 2, 1),
    Sketcher.Constraint("Coincident", 2, 2, 3, 1),
    Sketcher.Constraint("Coincident", 3, 2, 0, 1),
    Sketcher.Constraint("Vertical", 0),
    Sketcher.Constraint("Horizontal", 1),
    Sketcher.Constraint("Vertical", 2),
    Sketcher.Constraint("Horizontal", 3),
    Sketcher.Constraint("PointOnObject", 1, 2, -2),
    Sketcher.Constraint("DistanceX", 1, 1, 1, 2, 30.0),
    Sketcher.Constraint("DistanceY", 0, 1, 0, 2, 20.0),
    Sketcher.Constraint("DistanceY", 0, 2, -1, 1, 20.0),
])
pocket2 = body.newObject("PartDesign::Pocket", "Pocket001")
pocket2.Profile = sketch23
pocket2.Type = "ThroughAll"
pocket2.Reversed = True
doc.recompute()

mirrored13 = body.newObject("PartDesign::Mirrored", "Mirrored012")
mirrored13.Originals = [pocket2]
mirrored13.MirrorPlane = (doc.getObject("XY_Plane"), [""])
body.Tip = mirrored13
doc.recompute()

fillet5 = body.newObject("PartDesign::Fillet", "Fillet004")
fillet5.Base = (mirrored13, edges_at(mirrored13, [
    (0, 4, -57.5),
    (0, 0, -57.5),
    (0, 0, 0),
    (0, 4, 0),
    (-30, 0, -30),
    (-30, 2, -20),
    (-15, 0, -40),
    (-30, 2, -40),
    (0, 2, -40),
    (-15, 0, -20),
    (0, 2, -20),
    (-30, 4, -30),
    (-15, 4, -20),
    (-15, 4, -40),
    (0, 0, 57.5),
    (0, 4, 57.5),
    (-30, 4, 30),
    (-30, 2, 40),
    (-15, 4, 20),
    (-30, 2, 20),
    (0, 2, 20),
    (-15, 4, 40),
    (-30, 0, 30),
    (-15, 0, 20),
    (-15, 0, 40),
]))
fillet5.Radius = 1

doc.recompute()
